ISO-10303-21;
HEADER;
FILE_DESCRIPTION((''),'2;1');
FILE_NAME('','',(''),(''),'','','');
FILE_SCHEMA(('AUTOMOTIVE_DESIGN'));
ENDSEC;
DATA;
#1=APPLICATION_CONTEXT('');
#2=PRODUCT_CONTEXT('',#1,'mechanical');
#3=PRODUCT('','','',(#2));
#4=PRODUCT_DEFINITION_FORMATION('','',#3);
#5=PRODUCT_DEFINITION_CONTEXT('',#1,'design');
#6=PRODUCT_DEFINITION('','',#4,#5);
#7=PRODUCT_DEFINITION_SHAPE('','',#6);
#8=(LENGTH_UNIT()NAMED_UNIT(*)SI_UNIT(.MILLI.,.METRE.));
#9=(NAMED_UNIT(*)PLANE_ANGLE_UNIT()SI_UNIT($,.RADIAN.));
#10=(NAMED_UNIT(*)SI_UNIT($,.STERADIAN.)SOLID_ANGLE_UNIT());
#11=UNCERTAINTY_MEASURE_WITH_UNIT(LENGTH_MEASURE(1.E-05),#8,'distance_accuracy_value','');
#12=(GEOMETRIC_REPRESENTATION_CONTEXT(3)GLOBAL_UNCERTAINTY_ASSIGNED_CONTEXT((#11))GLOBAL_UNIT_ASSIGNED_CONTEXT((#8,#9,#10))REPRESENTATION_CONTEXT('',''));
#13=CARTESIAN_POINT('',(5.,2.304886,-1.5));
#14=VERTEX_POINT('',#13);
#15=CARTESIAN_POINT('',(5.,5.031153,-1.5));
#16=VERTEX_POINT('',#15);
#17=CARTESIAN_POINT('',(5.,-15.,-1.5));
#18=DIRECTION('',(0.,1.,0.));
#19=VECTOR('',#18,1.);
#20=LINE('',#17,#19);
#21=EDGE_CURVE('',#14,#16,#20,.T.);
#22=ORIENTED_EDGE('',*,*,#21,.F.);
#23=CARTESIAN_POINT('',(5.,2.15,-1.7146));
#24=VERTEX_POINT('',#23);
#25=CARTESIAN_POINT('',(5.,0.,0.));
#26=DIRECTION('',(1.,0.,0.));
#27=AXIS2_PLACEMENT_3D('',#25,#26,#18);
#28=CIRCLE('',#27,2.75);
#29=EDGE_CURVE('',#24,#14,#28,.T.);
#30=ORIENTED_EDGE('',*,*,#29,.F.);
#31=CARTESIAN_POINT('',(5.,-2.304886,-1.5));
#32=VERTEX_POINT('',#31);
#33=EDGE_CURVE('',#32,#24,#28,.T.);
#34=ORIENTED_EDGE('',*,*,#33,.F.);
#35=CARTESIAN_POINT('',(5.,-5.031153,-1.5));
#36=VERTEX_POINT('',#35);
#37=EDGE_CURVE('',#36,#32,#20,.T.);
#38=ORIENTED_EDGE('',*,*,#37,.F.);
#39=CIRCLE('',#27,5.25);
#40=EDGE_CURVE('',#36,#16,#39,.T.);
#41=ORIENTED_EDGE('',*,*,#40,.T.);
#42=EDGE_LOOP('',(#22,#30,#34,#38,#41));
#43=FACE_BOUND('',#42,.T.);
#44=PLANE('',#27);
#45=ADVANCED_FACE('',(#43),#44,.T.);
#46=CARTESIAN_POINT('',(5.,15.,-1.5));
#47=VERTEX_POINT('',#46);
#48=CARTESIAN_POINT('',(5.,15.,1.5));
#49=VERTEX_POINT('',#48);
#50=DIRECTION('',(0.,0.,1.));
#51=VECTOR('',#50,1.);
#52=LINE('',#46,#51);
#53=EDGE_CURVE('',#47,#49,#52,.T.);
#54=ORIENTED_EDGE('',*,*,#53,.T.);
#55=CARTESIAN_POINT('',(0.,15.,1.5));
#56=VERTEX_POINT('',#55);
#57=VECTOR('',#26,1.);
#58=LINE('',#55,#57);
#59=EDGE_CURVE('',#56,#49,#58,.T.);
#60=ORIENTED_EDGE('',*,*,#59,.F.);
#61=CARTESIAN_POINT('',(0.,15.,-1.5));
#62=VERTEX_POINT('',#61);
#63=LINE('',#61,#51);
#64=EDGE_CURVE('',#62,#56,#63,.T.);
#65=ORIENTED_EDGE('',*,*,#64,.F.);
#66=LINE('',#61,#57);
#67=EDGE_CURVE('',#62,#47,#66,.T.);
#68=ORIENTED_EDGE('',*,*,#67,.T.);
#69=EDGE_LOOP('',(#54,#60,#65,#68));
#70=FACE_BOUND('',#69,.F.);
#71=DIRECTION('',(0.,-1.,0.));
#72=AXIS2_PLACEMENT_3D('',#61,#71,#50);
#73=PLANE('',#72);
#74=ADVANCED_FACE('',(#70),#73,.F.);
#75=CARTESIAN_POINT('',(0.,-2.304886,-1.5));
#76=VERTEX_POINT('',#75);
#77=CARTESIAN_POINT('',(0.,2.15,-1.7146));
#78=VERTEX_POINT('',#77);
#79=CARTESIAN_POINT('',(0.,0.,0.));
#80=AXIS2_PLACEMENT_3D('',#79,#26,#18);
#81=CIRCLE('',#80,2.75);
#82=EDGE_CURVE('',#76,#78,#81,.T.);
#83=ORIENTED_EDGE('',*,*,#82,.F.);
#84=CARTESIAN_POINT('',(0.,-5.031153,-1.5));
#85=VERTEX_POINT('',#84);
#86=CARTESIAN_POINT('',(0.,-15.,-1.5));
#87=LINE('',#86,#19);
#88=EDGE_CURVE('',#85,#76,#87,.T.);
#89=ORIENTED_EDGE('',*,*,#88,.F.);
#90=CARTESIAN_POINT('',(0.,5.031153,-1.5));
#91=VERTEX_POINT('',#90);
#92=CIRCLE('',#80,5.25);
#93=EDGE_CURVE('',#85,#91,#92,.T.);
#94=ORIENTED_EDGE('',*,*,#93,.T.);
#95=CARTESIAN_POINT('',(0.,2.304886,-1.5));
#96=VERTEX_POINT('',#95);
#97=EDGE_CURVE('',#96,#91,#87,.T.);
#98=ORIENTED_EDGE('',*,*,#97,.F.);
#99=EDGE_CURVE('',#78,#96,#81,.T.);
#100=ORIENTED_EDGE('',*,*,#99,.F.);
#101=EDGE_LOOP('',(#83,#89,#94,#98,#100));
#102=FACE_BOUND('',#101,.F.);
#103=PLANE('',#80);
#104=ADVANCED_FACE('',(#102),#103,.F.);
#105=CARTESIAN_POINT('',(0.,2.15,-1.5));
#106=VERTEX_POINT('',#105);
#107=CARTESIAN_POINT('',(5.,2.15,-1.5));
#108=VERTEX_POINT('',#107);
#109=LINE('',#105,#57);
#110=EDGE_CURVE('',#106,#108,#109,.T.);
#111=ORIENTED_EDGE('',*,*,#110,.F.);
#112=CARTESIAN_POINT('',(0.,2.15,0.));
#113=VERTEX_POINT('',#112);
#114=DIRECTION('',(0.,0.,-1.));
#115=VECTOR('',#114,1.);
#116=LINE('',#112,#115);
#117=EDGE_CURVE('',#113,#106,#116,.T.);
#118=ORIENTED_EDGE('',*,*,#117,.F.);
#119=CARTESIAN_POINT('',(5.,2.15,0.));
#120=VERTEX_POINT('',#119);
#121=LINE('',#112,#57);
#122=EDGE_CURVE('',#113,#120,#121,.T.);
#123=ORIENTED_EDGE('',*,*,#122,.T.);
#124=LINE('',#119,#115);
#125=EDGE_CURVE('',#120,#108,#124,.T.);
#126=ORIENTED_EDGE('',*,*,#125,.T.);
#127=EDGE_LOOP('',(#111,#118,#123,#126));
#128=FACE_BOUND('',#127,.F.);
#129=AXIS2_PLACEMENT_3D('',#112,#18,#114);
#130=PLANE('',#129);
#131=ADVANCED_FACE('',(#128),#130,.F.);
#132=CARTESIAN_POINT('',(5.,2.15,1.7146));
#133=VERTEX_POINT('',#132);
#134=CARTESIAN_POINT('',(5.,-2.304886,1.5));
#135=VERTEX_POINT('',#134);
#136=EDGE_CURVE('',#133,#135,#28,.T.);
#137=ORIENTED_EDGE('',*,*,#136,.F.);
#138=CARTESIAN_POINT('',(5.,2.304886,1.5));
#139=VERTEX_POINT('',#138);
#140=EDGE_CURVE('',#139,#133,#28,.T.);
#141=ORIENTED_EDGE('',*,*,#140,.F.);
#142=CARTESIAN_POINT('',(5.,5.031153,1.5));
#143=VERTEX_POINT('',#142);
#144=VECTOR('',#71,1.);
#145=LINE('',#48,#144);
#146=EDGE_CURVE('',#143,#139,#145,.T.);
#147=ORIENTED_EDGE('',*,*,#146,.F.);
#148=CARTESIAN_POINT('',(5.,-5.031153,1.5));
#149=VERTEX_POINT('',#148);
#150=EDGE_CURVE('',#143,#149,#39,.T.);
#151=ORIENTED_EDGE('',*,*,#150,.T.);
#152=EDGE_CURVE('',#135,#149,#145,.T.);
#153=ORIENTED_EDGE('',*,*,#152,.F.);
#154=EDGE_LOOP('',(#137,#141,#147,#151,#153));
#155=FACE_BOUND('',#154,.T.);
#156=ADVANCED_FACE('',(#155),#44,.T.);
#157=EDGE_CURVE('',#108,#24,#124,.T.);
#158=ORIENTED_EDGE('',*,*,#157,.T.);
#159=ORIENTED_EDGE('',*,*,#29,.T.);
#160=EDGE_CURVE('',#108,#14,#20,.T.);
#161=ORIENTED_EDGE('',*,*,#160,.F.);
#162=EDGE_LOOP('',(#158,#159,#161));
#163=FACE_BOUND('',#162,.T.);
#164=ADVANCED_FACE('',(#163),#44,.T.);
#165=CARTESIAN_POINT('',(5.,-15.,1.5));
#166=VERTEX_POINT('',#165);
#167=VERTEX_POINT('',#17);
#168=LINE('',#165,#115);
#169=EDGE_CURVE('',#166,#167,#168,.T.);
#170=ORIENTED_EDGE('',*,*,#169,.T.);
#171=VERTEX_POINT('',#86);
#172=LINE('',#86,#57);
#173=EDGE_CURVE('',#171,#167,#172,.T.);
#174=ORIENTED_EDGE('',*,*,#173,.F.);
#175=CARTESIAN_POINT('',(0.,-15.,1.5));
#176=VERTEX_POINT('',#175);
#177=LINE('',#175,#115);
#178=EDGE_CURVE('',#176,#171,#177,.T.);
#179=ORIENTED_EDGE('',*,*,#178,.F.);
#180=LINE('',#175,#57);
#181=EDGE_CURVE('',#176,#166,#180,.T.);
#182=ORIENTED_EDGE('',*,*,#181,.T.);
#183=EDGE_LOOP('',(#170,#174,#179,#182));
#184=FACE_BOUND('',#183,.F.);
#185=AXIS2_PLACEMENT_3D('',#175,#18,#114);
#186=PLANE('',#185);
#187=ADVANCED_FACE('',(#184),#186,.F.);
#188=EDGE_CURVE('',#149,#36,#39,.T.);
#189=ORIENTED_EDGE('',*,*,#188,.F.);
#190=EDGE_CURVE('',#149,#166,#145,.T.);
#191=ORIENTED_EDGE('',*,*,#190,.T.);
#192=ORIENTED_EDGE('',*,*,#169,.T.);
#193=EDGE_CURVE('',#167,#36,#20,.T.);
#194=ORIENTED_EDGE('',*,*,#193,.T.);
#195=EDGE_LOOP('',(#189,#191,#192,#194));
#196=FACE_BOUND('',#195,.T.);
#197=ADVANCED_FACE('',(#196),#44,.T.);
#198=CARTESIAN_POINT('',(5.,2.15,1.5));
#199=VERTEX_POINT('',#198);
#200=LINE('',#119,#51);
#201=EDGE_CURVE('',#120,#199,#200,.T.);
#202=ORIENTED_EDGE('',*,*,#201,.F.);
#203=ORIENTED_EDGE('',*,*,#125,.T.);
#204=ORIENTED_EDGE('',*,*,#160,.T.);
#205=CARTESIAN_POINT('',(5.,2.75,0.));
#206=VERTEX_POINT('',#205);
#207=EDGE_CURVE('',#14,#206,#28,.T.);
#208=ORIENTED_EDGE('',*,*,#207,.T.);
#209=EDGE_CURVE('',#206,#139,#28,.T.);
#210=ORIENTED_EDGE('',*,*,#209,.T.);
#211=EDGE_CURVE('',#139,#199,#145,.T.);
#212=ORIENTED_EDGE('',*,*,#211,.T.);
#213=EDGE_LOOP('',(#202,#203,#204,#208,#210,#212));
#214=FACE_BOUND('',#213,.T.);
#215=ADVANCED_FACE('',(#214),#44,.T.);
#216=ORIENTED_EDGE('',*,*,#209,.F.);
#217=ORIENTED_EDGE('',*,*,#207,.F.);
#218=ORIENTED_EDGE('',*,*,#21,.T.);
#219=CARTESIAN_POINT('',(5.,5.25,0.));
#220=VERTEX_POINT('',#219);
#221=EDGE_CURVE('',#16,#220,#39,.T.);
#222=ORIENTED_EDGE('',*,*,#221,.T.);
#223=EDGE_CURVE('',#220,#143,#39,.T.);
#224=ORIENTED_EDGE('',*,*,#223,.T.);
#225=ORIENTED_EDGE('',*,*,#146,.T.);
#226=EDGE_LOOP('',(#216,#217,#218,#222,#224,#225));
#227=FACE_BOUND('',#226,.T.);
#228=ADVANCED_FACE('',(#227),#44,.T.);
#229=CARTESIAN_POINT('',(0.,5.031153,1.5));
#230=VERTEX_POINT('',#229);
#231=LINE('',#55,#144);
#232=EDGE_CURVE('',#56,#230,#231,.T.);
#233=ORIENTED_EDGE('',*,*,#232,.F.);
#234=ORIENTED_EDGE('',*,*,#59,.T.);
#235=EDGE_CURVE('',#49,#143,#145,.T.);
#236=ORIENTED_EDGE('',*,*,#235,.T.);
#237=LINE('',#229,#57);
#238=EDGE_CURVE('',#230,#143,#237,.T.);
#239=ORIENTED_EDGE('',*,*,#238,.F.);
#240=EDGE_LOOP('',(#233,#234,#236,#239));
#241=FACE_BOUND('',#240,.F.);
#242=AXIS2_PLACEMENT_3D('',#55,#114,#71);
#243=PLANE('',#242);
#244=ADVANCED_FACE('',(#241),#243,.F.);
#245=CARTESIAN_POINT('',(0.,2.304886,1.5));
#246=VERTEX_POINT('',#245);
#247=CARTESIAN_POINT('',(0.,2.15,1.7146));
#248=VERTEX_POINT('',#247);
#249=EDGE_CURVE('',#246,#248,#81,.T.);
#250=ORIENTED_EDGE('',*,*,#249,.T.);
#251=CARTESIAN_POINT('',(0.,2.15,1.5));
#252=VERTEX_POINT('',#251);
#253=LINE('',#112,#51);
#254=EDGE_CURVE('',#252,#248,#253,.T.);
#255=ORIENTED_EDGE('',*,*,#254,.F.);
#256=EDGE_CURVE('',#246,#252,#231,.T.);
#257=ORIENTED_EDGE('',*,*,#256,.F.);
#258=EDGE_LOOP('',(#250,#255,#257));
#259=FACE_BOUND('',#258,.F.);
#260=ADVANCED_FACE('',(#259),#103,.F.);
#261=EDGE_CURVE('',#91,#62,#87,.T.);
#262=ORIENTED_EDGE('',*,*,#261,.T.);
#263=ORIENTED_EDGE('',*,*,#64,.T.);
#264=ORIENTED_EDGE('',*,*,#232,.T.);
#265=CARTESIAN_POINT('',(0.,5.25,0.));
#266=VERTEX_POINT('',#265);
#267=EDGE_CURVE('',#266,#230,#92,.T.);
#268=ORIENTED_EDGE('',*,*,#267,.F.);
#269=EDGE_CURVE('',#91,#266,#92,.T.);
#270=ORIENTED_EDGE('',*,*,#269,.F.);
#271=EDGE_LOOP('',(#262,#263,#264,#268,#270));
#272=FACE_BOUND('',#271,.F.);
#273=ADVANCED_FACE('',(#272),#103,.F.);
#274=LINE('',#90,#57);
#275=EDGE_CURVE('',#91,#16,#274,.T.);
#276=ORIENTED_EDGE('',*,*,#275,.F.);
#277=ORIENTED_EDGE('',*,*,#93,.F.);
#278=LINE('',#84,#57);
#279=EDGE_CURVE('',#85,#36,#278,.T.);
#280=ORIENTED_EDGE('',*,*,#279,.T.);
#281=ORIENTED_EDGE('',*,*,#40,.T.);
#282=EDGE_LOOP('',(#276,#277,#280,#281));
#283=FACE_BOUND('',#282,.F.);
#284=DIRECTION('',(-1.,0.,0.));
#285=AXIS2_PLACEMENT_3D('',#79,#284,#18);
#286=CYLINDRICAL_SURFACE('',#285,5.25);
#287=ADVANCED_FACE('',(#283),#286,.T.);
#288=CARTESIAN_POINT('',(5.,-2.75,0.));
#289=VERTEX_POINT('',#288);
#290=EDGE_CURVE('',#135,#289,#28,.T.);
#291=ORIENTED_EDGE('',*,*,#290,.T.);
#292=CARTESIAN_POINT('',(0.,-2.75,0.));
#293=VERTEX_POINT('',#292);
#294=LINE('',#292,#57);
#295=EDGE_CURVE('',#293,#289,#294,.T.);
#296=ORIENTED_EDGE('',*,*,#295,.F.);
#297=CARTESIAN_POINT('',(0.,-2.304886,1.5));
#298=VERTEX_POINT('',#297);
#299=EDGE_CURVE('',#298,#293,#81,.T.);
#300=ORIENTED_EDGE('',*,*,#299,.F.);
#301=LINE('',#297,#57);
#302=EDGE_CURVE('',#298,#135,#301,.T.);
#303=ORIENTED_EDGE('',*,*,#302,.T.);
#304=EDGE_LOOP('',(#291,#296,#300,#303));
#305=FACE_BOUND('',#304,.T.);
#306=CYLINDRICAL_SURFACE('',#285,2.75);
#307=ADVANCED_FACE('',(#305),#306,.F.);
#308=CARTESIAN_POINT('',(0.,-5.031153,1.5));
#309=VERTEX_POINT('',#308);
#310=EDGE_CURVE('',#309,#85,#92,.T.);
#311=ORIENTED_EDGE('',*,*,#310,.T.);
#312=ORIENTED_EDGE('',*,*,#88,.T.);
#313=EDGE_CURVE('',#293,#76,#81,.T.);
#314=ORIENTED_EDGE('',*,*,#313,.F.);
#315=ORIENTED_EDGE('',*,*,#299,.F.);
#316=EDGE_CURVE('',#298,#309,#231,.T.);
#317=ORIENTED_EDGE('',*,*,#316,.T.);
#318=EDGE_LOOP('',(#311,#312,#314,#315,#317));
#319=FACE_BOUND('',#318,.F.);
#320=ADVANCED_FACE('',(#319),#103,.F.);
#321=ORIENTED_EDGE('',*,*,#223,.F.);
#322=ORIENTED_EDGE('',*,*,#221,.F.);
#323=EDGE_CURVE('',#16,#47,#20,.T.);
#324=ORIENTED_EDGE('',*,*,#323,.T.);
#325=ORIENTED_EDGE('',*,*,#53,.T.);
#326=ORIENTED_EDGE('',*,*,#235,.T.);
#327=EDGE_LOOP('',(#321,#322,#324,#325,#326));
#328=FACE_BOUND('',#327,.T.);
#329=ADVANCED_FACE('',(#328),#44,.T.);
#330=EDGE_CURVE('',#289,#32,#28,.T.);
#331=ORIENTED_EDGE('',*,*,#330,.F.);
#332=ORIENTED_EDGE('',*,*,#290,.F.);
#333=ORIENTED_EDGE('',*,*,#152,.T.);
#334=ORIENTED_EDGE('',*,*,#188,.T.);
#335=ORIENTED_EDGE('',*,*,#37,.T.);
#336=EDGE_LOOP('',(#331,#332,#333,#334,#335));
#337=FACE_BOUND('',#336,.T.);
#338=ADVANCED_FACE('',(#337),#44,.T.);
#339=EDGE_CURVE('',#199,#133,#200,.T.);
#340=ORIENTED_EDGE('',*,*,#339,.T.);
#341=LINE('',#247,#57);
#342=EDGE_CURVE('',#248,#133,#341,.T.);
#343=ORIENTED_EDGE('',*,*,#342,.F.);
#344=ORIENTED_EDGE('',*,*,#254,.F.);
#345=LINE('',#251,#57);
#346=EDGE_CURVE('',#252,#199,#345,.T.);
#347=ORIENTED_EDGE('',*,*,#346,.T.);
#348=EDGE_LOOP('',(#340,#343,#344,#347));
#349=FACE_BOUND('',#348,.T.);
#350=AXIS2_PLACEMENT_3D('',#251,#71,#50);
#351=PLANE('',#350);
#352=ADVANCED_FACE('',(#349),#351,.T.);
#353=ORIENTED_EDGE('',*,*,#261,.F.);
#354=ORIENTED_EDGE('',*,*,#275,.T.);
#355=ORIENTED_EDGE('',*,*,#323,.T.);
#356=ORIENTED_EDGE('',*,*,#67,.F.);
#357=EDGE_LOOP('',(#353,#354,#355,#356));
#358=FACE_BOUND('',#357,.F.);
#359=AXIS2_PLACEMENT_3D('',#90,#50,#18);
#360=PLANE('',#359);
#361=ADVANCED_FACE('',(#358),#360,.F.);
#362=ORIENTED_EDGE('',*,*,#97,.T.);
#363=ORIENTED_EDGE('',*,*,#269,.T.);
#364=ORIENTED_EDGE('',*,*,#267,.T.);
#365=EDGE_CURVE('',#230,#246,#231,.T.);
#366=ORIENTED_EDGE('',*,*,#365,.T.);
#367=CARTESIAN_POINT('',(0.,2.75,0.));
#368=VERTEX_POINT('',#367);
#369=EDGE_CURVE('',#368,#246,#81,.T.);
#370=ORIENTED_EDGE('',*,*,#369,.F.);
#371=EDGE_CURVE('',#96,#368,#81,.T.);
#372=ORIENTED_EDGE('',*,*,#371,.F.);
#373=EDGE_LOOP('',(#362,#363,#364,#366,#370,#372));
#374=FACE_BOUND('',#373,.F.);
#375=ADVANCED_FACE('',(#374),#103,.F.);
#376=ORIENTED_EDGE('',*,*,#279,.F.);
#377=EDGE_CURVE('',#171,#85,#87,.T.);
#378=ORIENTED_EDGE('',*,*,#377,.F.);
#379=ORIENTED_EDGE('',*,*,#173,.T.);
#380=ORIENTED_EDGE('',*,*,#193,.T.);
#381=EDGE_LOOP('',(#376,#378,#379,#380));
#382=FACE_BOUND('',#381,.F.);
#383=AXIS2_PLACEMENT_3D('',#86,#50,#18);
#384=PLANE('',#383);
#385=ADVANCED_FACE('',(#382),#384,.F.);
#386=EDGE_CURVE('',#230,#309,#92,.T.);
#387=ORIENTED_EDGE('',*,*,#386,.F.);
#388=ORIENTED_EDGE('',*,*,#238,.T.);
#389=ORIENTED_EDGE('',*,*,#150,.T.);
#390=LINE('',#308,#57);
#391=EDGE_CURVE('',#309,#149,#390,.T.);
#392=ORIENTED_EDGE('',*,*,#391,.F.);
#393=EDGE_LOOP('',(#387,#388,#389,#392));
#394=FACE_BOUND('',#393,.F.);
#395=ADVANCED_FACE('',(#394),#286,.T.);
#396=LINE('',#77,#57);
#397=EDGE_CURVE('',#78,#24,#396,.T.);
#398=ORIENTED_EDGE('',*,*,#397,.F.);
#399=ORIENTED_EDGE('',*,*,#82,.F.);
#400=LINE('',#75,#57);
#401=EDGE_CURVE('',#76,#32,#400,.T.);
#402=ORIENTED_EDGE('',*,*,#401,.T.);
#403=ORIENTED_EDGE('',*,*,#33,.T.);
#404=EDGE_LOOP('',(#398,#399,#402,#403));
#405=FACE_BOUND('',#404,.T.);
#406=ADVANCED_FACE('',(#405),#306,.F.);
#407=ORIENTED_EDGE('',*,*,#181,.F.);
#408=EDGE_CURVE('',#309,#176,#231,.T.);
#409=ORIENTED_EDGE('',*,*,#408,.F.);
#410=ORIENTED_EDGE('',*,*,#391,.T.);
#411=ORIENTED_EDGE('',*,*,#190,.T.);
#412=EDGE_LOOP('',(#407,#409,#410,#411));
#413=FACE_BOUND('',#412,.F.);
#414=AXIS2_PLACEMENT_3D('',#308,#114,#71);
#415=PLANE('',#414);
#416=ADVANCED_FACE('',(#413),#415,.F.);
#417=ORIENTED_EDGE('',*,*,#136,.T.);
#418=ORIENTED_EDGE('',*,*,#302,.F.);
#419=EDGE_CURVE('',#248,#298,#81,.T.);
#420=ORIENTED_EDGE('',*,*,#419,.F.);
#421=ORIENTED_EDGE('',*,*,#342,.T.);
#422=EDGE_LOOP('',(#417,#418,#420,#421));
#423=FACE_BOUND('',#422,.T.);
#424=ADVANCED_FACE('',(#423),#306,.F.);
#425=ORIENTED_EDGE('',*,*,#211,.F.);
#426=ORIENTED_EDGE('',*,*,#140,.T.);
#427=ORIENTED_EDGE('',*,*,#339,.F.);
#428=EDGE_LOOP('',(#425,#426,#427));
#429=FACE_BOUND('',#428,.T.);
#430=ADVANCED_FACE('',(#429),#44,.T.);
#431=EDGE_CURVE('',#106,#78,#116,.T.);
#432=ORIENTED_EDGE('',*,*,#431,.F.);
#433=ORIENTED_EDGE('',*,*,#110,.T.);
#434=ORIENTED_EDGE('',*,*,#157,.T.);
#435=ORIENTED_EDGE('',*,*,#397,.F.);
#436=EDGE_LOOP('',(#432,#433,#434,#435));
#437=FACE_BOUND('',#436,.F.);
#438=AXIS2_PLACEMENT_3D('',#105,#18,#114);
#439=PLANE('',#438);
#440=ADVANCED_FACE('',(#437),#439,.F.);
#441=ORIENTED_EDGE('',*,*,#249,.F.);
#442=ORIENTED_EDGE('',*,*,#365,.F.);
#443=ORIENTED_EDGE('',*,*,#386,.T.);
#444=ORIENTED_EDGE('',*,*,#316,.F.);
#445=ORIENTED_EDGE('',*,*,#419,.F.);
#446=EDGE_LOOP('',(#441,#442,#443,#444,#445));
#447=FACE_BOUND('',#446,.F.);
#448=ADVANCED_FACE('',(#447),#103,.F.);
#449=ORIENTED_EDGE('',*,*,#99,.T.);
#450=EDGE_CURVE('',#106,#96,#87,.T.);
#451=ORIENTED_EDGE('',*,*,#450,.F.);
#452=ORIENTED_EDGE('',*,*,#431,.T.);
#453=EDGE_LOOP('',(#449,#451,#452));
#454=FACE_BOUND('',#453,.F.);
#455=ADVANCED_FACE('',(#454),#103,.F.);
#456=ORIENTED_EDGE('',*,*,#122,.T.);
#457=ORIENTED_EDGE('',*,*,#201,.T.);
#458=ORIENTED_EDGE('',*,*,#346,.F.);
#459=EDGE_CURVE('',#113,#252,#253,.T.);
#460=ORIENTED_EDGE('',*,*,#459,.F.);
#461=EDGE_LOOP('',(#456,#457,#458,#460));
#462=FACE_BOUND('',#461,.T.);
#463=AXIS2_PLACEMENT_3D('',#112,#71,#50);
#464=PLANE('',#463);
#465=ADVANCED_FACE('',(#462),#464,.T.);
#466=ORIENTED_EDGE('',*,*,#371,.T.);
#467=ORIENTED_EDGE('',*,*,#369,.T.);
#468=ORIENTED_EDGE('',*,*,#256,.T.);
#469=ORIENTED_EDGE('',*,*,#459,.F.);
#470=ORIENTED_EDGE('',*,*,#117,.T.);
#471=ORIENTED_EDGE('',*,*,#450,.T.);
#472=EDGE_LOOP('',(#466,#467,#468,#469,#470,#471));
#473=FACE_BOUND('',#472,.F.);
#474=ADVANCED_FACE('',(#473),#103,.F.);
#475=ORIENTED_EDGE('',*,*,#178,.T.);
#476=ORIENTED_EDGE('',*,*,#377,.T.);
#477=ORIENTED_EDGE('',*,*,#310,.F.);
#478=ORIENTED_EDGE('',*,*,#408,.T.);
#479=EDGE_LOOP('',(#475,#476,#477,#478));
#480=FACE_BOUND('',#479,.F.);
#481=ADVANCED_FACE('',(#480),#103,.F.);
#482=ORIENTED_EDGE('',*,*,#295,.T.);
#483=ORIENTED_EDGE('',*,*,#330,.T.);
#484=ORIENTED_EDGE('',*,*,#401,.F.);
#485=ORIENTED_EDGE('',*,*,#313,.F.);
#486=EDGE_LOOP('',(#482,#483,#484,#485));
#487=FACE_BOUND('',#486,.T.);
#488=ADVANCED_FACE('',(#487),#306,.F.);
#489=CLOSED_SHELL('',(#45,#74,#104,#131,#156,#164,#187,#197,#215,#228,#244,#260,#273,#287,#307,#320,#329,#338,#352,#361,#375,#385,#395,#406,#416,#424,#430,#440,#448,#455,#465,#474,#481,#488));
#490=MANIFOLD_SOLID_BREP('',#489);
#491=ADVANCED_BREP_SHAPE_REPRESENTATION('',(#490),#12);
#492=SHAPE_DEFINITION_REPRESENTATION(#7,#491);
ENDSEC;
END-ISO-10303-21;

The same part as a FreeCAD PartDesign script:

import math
import FreeCAD as App
import Part
import Sketcher

V = App.Vector

doc = App.newDocument("Part")
body = doc.addObject("PartDesign::Body", "Body")

sketch1 = body.newObject("Sketcher::SketchObject", "Sketch")
sketch1.AttachmentSupport = (doc.getObject("YZ_Plane"), [""])
sketch1.MapMode = "FlatFace"
sketch1.addGeometry([
    Part.ArcOfCircle(Part.Circle(V(0, 0, 0), V(0, 0, 1), 5.2), math.radians(-163), math.radians(-17)),
    Part.LineSegment(V(5, -1.5, 0), V(15, -1.5, 0)),
    Part.LineSegment(V(15, -1.5, 0), V(15, 1.5, 0)),
    Part.LineSegment(V(15, 1.5, 0), V(5, 1.5, 0)),
    Part.ArcOfCircle(Part.Circle(V(0, 0, 0), V(0, 0, 1), 5.2), math.radians(17), math.radians(163)),
    Part.LineSegment(V(-5, 1.5, 0), V(-15, 1.5, 0)),
    Part.LineSegment(V(-15, 1.5, 0), V(-15, -1.5, 0)),
    Part.LineSegment(V(-15, -1.5, 0), V(-5, -1.5, 0)),
    Part.ArcOfCircle(Part.Circle(V(0, 0, 0), V(0, 0, 1), 2.8), math.radians(39), math.radians(321)),
    Part.LineSegment(V(2.1, -1.7, 0), V(2.1, 1.7, 0)),
], False)
sketch1.addConstraint([
    Sketcher.Constraint("Coincident", 0, 2, 1, 1),
    Sketcher.Constraint("Coincident", 1, 2, 2, 1),
    Sketcher.Constraint("Coincident", 2, 2, 3, 1),
    Sketcher.Constraint("Coincident", 3, 2, 4, 1),
    Sketcher.Constraint("Coincident", 4, 2, 5, 1),
    Sketcher.Constraint("Coincident", 5, 2, 6, 1),
    Sketcher.Constraint("Coincident", 6, 2, 7, 1),
    Sketcher.Constraint("Coincident", 7, 2, 0, 1),
    Sketcher.Constraint("Coincident", 8, 1, 9, 2),
    Sketcher.Constraint("Coincident", 9, 1, 8, 2),
    Sketcher.Constraint("Horizontal", 1),
    Sketcher.Constraint("Vertical", 2),
    Sketcher.Constraint("Horizontal", 3),
    Sketcher.Constraint("Horizontal", 5),
    Sketcher.Constraint("Vertical", 6),
    Sketcher.Constraint("Horizontal", 7),
    Sketcher.Constraint("Vertical", 9),
    Sketcher.Constraint("Coincident", 0, 3, -1, 1),
    Sketcher.Constraint("Coincident", 4, 3, -1, 1),
    Sketcher.Constraint("Coincident", 8, 3, -1, 1),
    Sketcher.Constraint("Equal", 0, 4),
    Sketcher.Constraint("Symmetric", 1, 2, 5, 2, -1, 1),
    Sketcher.Constraint("Horizontal", 3, 2, 4, 2),
    Sketcher.Constraint("Horizontal", 1, 2, 6, 2),
    Sketcher.Constraint("DistanceY", 2, 1, 2, 2, 3.0),
    Sketcher.Constraint("Radius", 8, 2.75),
    Sketcher.Constraint("Radius", 0, 5.25),
    Sketcher.Constraint("DistanceX", -1, 1, 1, 2, 15.0),
    Sketcher.Constraint("DistanceX", -1, 1, 8, 1, 2.15),
])
pad1 = body.newObject("PartDesign::Pad", "Pad")
pad1.Profile = sketch1
pad1.Length = 5

doc.recompute()
